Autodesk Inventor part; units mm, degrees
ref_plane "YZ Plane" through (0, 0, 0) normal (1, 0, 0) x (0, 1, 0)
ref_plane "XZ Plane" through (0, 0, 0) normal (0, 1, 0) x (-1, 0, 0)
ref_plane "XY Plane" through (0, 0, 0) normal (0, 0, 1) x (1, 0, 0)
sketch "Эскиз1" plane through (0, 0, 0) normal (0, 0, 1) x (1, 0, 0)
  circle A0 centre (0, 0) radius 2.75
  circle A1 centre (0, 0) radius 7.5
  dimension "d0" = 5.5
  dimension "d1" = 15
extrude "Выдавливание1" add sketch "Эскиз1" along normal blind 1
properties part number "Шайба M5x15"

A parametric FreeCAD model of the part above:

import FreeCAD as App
import Part
import Sketcher

V = App.Vector

doc = App.newDocument("Part")
body = doc.addObject("PartDesign::Body", "Body")

sketch1 = body.newObject("Sketcher::SketchObject", "Sketch")
sketch1.AttachmentSupport = (doc.getObject("XY_Plane"), [""])
sketch1.MapMode = "FlatFace"
sketch1.addGeometry([
    Part.Circle(V(0, 0, 0), V(0, 0, 1), 7.5),
    Part.Circle(V(0, 0, 0), V(0, 0, 1), 2.8),
], False)
sketch1.addConstraint([
    Sketcher.Constraint("Coincident", 0, 3, -1, 1),
    Sketcher.Constraint("Coincident", 1, 3, -1, 1),
    Sketcher.Constraint("Diameter", 0, 15.0),
    Sketcher.Constraint("Diameter", 1, 5.5),
])
pad1 = body.newObject("PartDesign::Pad", "Pad")
pad1.Profile = sketch1
pad1.Length = 1

doc.recompute()
